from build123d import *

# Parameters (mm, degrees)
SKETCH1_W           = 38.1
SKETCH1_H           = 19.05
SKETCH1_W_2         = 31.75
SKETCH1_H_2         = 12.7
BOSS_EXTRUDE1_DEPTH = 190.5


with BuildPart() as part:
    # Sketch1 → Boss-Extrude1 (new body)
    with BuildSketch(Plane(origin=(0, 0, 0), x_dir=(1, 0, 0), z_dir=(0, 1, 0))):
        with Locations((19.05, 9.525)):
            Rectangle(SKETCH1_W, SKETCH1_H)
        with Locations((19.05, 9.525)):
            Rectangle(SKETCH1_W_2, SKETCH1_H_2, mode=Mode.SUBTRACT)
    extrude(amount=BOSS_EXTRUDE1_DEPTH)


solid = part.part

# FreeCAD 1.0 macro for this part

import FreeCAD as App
import Part
import Sketcher
from FreeCAD import Vector
Q = App.Units.Quantity


def add_polygon(sketch, points):
    """Adds a closed chain of lines whose ends are joined by coincident constraints."""
    first, n = sketch.GeometryCount, len(points)
    for a, b in zip(points, points[1:] + points[:1]):
        sketch.addGeometry(Part.LineSegment(App.Vector(*a, 0), App.Vector(*b, 0)), False)
    for i in range(n):
        sketch.addConstraint(Sketcher.Constraint("Coincident", first + i, 2, first + (i + 1) % n, 1))

doc = App.newDocument("Part")
body = doc.addObject("PartDesign::Body", "Body")

# Sketch on XZ plane
sketch1 = body.newObject("Sketcher::SketchObject", "Sketch")
sketch1.AttachmentSupport = (doc.getObject("XZ_Plane"), [""])
sketch1.MapMode = "FlatFace"
add_polygon(sketch1, [(0, -19.05), (0, 0), (38.1, 0), (38.1, -19.05)])  # lines 0-3
add_polygon(sketch1, [(34.925, -3.175), (3.175, -3.175), (3.175, -15.875), (34.925, -15.875)])  # lines 4-7
sketch1.addConstraint([
    Sketcher.Constraint("Vertical", 0),
    Sketcher.Constraint("Horizontal", 1),
    Sketcher.Constraint("Vertical", 2),
    Sketcher.Constraint("Horizontal", 3),
    Sketcher.Constraint("Horizontal", 4),
    Sketcher.Constraint("Vertical", 5),
    Sketcher.Constraint("Horizontal", 6),
    Sketcher.Constraint("Vertical", 7),
    Sketcher.Constraint("Coincident", 0, 2, -1, 1),
    Sketcher.Constraint("DistanceX", 1, 1, 1, 2, Q("1.5 in")),
    Sketcher.Constraint("DistanceY", 5, 2, 5, 1, Q("0.5 in")),
    Sketcher.Constraint("DistanceX", 4, 2, 4, 1, Q("1.25 in")),
    Sketcher.Constraint("DistanceY", 0, 1, 0, 2, Q("0.75 in")),
    Sketcher.Constraint("DistanceX", -1, 1, 4, 2, Q("0.125 in")),
    Sketcher.Constraint("DistanceY", 4, 2, -1, 1, Q("0.125 in")),
])
pad1 = body.newObject("PartDesign::Pad", "Pad")
pad1.Profile = sketch1
pad1.Length = Q("7.5 in")
pad1.Reversed = True

doc.recompute()
